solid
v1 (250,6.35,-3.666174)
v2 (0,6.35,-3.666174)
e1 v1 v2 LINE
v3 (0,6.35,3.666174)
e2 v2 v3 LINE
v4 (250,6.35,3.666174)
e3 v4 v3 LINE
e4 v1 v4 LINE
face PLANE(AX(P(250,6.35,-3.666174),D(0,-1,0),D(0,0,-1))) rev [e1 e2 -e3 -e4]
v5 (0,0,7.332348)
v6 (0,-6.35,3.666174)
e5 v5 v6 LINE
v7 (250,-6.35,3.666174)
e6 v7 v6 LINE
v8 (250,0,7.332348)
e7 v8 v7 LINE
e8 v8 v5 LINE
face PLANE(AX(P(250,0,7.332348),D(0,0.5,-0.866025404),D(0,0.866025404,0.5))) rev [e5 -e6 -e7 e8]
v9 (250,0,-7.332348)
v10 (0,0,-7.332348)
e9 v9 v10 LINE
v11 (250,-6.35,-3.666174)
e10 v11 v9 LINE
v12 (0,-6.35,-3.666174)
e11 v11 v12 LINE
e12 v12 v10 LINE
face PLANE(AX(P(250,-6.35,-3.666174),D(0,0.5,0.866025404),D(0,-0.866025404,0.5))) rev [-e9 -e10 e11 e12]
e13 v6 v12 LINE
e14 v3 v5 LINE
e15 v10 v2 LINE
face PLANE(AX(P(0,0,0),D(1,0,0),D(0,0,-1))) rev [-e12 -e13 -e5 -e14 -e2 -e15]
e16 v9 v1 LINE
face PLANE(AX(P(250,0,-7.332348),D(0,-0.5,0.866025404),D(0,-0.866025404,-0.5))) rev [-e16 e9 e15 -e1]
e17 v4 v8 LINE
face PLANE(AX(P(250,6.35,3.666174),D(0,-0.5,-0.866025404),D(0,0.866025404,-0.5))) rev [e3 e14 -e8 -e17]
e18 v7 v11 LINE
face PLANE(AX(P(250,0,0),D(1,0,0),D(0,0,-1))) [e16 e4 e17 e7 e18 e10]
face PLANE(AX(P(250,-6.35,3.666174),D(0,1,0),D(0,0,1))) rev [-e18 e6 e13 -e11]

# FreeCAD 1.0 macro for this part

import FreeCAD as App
import Part
import Sketcher
Q = App.Units.Quantity

doc = App.newDocument("Part")
params = doc.addObject("Spreadsheet::Sheet", "Params")
for row, (alias, value) in enumerate([
    ("pad1_length", "250 mm"),
], start=1):
    params.set(f"A{row}", alias)
    params.set(f"B{row}", "=" + value)
    params.setAlias(f"B{row}", alias)

body = doc.addObject("PartDesign::Body", "Body")

sketch1 = body.newObject("Sketcher::SketchObject", "Sketch")
sketch1.AttachmentSupport = (doc.getObject("YZ_Plane"), [""])
sketch1.MapMode = "FlatFace"
sketch1.addGeometry([
    Part.LineSegment(App.Vector(0, -7, 0), App.Vector(6, -4, 0)),
    Part.LineSegment(App.Vector(6, -4, 0), App.Vector(6, 4, 0)),
    Part.LineSegment(App.Vector(6, 4, 0), App.Vector(0, 7, 0)),
    Part.LineSegment(App.Vector(0, 7, 0), App.Vector(-6, 4, 0)),
    Part.LineSegment(App.Vector(-6, 4, 0), App.Vector(-6, -4, 0)),
    Part.LineSegment(App.Vector(-6, -4, 0), App.Vector(0, -7, 0)),
], False)
sketch1.addConstraint([
    Sketcher.Constraint("Coincident", 0, 2, 1, 1),
    Sketcher.Constraint("Coincident", 1, 2, 2, 1),
    Sketcher.Constraint("Coincident", 2, 2, 3, 1),
    Sketcher.Constraint("Coincident", 3, 2, 4, 1),
    Sketcher.Constraint("Coincident", 4, 2, 5, 1),
    Sketcher.Constraint("Coincident", 5, 2, 0, 1),
    Sketcher.Constraint("Vertical", 1),
    Sketcher.Constraint("Vertical", 4),
    Sketcher.Constraint("Symmetric", 0, 2, 3, 2, -1, 1),
    Sketcher.Constraint("Symmetric", 2, 2, 5, 2, -1, 1),
    Sketcher.Constraint("PointOnObject", 2, 2, -2),
    Sketcher.Constraint("Parallel", 2, 5),
    Sketcher.Constraint("Horizontal", 1, 2, 3, 2),
    Sketcher.Constraint("Angle", 0, Q("30 deg")),
    Sketcher.Constraint("DistanceX", 3, 2, 1, 2, 12.7),
    Sketcher.Constraint("DistanceY", 1, 1, 1, 2, 7.332348),
])
pad1 = body.newObject("PartDesign::Pad", "Pad")
pad1.Profile = sketch1
pad1.setExpression("Length", "Params.pad1_length")

doc.recompute()
